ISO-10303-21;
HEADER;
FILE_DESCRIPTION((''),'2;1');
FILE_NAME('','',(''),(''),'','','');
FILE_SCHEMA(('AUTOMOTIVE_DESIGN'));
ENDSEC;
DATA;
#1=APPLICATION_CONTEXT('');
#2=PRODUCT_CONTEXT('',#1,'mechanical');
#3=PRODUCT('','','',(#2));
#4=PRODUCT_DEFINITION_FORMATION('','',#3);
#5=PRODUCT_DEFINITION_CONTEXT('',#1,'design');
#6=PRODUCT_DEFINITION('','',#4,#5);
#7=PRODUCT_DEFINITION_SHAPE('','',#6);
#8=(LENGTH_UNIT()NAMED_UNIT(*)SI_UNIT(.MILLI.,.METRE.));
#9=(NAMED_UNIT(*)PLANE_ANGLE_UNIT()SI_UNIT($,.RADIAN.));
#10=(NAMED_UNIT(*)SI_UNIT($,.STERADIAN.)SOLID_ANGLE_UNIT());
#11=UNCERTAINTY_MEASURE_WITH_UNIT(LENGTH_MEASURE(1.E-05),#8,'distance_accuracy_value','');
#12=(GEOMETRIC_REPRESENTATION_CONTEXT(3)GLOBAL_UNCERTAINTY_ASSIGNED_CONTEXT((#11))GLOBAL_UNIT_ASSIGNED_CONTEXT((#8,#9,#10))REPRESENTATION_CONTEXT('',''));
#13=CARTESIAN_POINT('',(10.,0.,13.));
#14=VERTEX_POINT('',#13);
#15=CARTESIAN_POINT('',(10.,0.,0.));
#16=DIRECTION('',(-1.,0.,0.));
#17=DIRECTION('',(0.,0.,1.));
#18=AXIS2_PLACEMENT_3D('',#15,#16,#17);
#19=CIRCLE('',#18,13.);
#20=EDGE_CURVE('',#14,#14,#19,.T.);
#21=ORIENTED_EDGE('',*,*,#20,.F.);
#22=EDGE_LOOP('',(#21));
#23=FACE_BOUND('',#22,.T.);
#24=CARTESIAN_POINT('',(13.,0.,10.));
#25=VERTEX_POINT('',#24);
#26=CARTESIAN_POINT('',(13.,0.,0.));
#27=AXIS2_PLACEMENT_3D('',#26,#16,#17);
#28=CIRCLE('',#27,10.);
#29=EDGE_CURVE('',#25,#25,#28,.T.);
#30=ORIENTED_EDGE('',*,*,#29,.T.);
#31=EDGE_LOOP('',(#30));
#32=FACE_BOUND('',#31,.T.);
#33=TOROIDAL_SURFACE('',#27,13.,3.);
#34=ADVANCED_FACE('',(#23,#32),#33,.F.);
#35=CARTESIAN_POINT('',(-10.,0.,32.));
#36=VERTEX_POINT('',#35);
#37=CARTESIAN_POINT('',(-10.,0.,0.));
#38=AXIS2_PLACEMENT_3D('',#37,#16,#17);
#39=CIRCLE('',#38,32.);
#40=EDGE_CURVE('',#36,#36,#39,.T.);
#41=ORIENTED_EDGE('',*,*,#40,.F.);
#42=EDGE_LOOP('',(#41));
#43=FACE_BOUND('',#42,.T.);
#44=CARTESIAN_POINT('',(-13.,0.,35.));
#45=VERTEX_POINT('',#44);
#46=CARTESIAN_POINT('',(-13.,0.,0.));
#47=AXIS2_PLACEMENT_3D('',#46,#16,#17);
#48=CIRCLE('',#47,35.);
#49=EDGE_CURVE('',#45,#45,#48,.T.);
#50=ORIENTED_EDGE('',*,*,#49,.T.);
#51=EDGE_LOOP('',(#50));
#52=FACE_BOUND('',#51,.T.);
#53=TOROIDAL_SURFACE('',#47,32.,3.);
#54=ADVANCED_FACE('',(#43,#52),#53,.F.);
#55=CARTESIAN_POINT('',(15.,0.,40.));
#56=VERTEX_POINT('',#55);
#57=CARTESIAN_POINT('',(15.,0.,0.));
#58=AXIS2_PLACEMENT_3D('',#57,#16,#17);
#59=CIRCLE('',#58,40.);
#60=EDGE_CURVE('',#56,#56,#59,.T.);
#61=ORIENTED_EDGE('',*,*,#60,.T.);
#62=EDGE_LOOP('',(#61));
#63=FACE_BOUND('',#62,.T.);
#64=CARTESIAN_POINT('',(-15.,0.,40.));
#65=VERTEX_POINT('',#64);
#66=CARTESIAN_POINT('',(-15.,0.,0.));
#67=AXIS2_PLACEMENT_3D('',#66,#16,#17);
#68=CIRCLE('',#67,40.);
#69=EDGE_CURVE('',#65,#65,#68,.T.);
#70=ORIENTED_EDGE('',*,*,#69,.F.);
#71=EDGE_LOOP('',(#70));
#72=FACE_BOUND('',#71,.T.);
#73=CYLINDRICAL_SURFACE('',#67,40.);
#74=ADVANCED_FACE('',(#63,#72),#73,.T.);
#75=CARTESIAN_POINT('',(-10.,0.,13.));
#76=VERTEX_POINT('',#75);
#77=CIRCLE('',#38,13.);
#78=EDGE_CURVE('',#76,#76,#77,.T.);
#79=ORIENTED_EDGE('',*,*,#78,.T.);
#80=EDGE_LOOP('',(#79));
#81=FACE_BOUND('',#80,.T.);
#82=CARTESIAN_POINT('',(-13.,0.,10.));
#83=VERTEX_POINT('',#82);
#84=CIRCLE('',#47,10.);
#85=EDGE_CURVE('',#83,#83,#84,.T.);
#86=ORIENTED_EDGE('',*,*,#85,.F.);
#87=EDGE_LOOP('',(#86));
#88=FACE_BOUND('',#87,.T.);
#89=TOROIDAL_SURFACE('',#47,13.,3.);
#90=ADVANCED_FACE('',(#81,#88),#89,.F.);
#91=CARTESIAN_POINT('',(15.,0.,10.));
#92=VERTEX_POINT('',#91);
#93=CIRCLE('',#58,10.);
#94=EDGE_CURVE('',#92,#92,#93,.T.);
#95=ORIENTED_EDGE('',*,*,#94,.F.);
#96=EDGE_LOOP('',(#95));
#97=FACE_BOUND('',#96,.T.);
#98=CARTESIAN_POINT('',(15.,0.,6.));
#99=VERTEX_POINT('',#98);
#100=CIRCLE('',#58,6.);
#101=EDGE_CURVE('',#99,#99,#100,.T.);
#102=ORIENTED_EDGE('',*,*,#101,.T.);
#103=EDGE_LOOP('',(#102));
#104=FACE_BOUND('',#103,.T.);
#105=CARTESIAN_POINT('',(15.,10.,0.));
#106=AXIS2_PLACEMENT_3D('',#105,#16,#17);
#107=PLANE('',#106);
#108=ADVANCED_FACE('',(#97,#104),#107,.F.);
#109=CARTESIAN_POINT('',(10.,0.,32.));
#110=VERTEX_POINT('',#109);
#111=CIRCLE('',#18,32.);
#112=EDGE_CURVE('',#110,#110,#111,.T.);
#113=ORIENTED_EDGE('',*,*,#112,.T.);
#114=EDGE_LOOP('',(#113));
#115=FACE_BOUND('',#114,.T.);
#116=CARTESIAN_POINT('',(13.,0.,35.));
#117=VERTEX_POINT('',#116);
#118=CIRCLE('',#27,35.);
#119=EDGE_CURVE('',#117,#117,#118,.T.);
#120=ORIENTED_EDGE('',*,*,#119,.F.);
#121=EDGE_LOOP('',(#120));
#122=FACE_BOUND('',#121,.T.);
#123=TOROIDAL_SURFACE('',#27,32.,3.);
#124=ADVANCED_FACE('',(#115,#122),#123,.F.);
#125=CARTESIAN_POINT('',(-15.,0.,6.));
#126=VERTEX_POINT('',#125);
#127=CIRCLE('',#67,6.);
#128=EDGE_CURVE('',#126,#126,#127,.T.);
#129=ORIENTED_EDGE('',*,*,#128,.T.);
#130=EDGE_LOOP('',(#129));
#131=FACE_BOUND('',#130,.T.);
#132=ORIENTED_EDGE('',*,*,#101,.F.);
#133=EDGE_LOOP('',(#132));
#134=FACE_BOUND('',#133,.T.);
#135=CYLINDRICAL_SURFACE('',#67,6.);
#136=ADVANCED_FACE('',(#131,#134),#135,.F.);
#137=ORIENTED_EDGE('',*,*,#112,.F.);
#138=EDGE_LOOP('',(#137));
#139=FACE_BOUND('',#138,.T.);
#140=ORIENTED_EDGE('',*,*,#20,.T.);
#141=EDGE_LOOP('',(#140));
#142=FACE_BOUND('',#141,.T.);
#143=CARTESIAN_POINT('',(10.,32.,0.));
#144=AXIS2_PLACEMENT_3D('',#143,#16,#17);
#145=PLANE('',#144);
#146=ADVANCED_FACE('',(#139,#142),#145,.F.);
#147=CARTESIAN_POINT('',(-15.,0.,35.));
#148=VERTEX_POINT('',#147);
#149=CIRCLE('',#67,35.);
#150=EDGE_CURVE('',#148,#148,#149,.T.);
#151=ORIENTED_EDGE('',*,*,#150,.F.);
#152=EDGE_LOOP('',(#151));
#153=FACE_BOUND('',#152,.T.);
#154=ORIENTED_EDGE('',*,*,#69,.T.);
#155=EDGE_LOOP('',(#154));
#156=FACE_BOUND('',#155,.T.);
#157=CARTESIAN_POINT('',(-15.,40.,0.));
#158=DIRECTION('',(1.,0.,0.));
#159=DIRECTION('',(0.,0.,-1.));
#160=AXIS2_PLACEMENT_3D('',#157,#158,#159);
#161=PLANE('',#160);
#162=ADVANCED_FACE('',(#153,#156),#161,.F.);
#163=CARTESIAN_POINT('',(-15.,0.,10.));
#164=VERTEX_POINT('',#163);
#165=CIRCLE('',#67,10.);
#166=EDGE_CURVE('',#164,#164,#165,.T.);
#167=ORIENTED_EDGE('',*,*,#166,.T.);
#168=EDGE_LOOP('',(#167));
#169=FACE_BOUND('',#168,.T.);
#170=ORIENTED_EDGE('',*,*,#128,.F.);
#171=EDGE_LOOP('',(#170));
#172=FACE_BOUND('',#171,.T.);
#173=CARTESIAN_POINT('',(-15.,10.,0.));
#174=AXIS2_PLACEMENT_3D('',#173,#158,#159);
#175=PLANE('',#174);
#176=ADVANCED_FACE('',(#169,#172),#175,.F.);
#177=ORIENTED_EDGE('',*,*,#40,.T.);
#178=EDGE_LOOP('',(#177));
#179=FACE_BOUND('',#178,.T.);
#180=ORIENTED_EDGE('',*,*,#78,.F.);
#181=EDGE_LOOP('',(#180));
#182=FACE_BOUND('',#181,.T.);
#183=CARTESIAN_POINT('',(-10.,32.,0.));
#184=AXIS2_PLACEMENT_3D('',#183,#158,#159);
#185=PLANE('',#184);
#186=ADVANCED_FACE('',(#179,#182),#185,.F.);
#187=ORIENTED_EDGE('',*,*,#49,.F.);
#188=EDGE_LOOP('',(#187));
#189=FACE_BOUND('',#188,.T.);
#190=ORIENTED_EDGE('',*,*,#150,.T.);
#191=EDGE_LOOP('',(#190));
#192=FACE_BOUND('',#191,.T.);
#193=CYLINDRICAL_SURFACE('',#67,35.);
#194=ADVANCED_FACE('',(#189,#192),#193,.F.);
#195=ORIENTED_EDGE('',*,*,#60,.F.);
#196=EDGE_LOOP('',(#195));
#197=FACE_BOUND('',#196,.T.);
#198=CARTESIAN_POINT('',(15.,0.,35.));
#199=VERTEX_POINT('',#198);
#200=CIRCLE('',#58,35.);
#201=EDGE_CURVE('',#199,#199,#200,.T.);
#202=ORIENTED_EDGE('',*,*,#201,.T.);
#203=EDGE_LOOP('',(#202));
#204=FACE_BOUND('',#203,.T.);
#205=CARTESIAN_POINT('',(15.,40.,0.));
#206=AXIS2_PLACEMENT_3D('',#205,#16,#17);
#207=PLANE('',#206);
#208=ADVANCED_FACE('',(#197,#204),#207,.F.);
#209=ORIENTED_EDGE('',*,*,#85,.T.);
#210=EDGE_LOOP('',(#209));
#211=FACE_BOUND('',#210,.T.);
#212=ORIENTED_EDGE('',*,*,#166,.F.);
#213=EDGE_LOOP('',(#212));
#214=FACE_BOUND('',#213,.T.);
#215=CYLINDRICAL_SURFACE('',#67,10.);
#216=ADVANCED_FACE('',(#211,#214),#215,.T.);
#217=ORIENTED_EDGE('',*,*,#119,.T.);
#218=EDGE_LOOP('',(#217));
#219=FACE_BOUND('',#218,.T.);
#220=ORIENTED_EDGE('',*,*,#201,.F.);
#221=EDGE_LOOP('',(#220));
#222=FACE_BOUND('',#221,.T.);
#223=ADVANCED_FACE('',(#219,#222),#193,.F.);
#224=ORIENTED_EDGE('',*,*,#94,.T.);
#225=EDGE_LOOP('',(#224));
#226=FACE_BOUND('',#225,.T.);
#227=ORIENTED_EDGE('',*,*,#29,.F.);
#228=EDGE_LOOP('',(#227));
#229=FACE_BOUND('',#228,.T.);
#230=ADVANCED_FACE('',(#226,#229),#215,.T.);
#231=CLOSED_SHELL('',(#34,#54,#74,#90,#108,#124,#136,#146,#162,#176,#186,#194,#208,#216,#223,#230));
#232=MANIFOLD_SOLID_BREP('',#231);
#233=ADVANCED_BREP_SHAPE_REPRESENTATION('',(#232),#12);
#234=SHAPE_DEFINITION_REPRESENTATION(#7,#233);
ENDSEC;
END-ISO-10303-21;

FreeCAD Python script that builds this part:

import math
import FreeCAD as App
import Part
import Sketcher

V = App.Vector

doc = App.newDocument("Part")
body = doc.addObject("PartDesign::Body", "Body")

sketch1 = body.newObject("Sketcher::SketchObject", "Sketch")
sketch1.AttachmentSupport = (doc.getObject("XY_Plane"), [""])
sketch1.MapMode = "FlatFace"
sketch1.addGeometry([
    Part.LineSegment(V(15, 40, 0), V(-15, 40, 0)),
    Part.LineSegment(V(-15, 40, 0), V(-15, 35, 0)),
    Part.LineSegment(V(-15, 35, 0), V(-13, 35, 0)),
    Part.ArcOfCircle(Part.Circle(V(-13, 32, 0), V(0, 0, 1), 3), math.radians(0), math.radians(90)),
    Part.LineSegment(V(-10, 32, 0), V(-10, 13, 0)),
    Part.ArcOfCircle(Part.Circle(V(-13, 13, 0), V(0, 0, 1), 3), math.radians(-90), math.radians(0)),
    Part.LineSegment(V(-13, 10, 0), V(-15, 10, 0)),
    Part.LineSegment(V(-15, 10, 0), V(-15, 6, 0)),
    Part.LineSegment(V(-15, 6, 0), V(15, 6, 0)),
    Part.LineSegment(V(15, 6, 0), V(15, 10, 0)),
    Part.LineSegment(V(15, 10, 0), V(13, 10, 0)),
    Part.ArcOfCircle(Part.Circle(V(13, 13, 0), V(0, 0, 1), 3), math.radians(180), math.radians(270)),
    Part.LineSegment(V(10, 13, 0), V(10, 32, 0)),
    Part.ArcOfCircle(Part.Circle(V(13, 32, 0), V(0, 0, 1), 3), math.radians(90), math.radians(180)),
    Part.LineSegment(V(13, 35, 0), V(15, 35, 0)),
    Part.LineSegment(V(15, 35, 0), V(15, 40, 0)),
], False)
sketch1.addConstraint([
    Sketcher.Constraint("Coincident", 0, 2, 1, 1),
    Sketcher.Constraint("Coincident", 1, 2, 2, 1),
    Sketcher.Constraint("Tangent", 2, 2, 3, 2),
    Sketcher.Constraint("Tangent", 3, 1, 4, 1),
    Sketcher.Constraint("Tangent", 4, 2, 5, 2),
    Sketcher.Constraint("Tangent", 5, 1, 6, 1),
    Sketcher.Constraint("Coincident", 6, 2, 7, 1),
    Sketcher.Constraint("Coincident", 7, 2, 8, 1),
    Sketcher.Constraint("Coincident", 8, 2, 9, 1),
    Sketcher.Constraint("Coincident", 9, 2, 10, 1),
    Sketcher.Constraint("Tangent", 10, 2, 11, 2),
    Sketcher.Constraint("Tangent", 11, 1, 12, 1),
    Sketcher.Constraint("Tangent", 12, 2, 13, 2),
    Sketcher.Constraint("Tangent", 13, 1, 14, 1),
    Sketcher.Constraint("Coincident", 14, 2, 15, 1),
    Sketcher.Constraint("Coincident", 15, 2, 0, 1),
    Sketcher.Constraint("Horizontal", 0),
    Sketcher.Constraint("Vertical", 1),
    Sketcher.Constraint("Horizontal", 2),
    Sketcher.Constraint("Vertical", 4),
    Sketcher.Constraint("Horizontal", 6),
    Sketcher.Constraint("Vertical", 7),
    Sketcher.Constraint("Horizontal", 8),
    Sketcher.Constraint("Vertical", 9),
    Sketcher.Constraint("Horizontal", 10),
    Sketcher.Constraint("Vertical", 12),
    Sketcher.Constraint("Horizontal", 14),
    Sketcher.Constraint("Vertical", 15),
    Sketcher.Constraint("Equal", 3, 5),
    Sketcher.Constraint("Equal", 5, 11),
    Sketcher.Constraint("Equal", 11, 13),
    Sketcher.Constraint("Symmetric", 5, 3, 11, 3, -2),
    Sketcher.Constraint("Symmetric", 1, 2, 14, 2, -2),
    Sketcher.Constraint("Vertical", 1, 2, 6, 2),
    Sketcher.Constraint("Vertical", 9, 2, 14, 2),
    Sketcher.Constraint("Radius", 3, 3.0),
    Sketcher.Constraint("DistanceX", 0, 2, 0, 1, 30.0),
    Sketcher.Constraint("DistanceX", 2, 1, 2, 2, 2.0),
    Sketcher.Constraint("DistanceY", 1, 2, 1, 1, 5.0),
    Sketcher.Constraint("DistanceY", 4, 2, 4, 1, 19.0),
    Sketcher.Constraint("DistanceY", 7, 2, 7, 1, 4.0),
    Sketcher.Constraint("DistanceY", -1, 1, 3, 3, 32.0),
])
revolution = body.newObject("PartDesign::Revolution", "Revolution")
revolution.Profile = sketch1
revolution.ReferenceAxis = (sketch1, ["H_Axis"])
revolution.Angle = 360

doc.recompute()
